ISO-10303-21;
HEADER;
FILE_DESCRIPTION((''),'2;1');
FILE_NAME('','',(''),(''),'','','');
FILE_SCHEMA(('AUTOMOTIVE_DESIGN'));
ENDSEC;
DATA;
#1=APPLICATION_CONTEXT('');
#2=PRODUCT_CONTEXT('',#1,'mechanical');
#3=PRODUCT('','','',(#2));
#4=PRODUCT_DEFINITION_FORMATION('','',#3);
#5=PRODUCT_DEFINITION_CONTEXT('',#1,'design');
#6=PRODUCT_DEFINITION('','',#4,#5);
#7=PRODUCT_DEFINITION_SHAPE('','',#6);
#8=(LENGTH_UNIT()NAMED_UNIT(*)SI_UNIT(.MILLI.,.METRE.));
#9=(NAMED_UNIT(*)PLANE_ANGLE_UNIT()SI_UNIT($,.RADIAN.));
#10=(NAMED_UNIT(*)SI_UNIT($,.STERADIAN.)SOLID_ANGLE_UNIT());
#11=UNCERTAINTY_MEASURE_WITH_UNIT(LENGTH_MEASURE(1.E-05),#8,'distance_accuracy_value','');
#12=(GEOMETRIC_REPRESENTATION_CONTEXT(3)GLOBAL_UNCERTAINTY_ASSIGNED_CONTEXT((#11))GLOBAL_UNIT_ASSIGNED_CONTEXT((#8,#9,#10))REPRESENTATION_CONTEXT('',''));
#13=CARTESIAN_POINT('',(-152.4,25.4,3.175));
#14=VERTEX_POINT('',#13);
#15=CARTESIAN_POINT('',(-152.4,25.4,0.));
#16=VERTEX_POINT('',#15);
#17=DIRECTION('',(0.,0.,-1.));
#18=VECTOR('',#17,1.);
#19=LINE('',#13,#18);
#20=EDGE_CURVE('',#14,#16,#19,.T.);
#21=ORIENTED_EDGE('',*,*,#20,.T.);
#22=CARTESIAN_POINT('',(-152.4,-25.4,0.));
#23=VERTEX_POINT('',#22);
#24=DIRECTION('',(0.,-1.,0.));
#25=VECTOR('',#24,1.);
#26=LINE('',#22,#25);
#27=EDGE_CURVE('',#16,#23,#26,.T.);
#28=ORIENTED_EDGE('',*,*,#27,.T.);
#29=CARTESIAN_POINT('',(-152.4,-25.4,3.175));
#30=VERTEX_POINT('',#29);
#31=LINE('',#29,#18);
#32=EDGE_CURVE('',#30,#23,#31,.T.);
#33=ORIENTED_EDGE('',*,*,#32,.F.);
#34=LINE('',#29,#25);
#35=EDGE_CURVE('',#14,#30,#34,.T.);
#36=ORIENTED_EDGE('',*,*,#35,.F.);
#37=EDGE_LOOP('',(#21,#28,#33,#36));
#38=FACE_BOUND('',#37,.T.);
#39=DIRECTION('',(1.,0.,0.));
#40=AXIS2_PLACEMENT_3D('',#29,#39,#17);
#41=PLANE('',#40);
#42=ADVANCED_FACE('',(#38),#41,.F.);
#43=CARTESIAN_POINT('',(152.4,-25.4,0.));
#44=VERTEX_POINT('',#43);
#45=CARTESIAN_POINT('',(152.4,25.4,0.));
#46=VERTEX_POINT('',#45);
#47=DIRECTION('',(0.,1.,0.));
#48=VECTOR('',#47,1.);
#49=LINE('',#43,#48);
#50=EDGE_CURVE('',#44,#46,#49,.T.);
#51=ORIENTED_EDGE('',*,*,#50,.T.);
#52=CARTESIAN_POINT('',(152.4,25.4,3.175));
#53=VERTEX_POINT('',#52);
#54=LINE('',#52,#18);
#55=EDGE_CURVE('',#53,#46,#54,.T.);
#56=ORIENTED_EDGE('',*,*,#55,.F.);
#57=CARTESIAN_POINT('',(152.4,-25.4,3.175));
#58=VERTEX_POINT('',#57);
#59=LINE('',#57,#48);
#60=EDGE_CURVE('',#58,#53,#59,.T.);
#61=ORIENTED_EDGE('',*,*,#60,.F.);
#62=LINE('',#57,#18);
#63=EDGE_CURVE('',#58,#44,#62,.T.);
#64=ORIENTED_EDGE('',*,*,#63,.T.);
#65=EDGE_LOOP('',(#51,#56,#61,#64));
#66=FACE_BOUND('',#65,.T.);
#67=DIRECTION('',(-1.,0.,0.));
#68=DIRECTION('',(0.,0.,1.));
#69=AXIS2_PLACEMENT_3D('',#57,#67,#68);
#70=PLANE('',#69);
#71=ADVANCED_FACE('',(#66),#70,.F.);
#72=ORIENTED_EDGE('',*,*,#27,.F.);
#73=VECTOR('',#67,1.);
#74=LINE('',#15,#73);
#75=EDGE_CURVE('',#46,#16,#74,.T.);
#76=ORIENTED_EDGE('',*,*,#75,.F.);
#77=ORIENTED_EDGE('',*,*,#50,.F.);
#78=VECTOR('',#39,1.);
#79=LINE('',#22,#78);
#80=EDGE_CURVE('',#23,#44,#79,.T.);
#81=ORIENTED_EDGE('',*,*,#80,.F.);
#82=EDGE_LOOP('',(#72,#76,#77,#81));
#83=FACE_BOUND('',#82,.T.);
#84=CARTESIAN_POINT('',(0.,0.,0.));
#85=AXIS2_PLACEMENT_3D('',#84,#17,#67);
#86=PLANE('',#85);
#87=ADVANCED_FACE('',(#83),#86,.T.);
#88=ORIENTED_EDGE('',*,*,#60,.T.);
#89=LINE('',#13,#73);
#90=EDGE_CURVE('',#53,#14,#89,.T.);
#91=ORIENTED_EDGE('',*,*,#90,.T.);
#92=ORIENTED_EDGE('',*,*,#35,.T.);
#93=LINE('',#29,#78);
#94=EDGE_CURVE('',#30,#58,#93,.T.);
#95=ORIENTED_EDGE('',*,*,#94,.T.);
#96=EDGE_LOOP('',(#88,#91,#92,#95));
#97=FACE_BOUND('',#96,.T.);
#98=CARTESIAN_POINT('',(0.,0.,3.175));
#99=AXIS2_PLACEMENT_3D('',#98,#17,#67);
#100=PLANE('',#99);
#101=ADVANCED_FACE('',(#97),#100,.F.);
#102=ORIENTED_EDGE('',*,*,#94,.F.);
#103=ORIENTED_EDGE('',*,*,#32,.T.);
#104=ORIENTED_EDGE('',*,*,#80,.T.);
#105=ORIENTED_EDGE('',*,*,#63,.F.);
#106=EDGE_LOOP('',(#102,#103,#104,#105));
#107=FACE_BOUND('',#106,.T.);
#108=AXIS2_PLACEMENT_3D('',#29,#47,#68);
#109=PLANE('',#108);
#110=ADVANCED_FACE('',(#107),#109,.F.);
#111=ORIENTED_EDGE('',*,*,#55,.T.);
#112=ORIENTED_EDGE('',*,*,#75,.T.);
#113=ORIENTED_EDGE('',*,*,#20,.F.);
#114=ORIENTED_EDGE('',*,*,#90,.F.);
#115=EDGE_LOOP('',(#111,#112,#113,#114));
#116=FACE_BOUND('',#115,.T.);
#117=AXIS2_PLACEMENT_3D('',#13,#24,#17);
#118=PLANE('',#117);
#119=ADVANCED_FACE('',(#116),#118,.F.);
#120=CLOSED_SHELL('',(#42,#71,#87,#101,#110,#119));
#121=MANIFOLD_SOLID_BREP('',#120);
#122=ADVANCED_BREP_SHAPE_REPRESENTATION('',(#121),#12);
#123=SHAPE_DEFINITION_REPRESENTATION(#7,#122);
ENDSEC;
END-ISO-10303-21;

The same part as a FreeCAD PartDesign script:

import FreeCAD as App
import Part
import Sketcher

V = App.Vector
Q = App.Units.Quantity


def add_polygon(sketch, points):
    """Adds a closed chain of lines whose ends are joined by coincident constraints."""
    first, n = sketch.GeometryCount, len(points)
    for a, b in zip(points, points[1:] + points[:1]):
        sketch.addGeometry(Part.LineSegment(App.Vector(*a, 0), App.Vector(*b, 0)), False)
    for i in range(n):
        sketch.addConstraint(Sketcher.Constraint("Coincident", first + i, 2, first + (i + 1) % n, 1))

doc = App.newDocument("Part")
params = doc.addObject("Spreadsheet::Sheet", "Params")
for row, (alias, value) in enumerate([
    ("sketch1_width", "12 in"),
    ("sketch1_height", "2 in"),
    ("pad1_length", "0.125 in"),
], start=1):
    params.set(f"A{row}", alias)
    params.set(f"B{row}", "=" + value)
    params.setAlias(f"B{row}", alias)

body = doc.addObject("PartDesign::Body", "Body")

# Sketch on XY plane
sketch1 = doc.addObject("Sketcher::SketchObject", "Sketch")
body.addObject(sketch1)
sketch1.AttachmentSupport = (doc.XY_Plane, [""])
sketch1.MapMode = "FlatFace"
add_polygon(sketch1, [(-152, 25), (-152, -25), (152, -25), (152, 25)])  # lines 0-3
sketch1.addConstraint([
    Sketcher.Constraint("Vertical", 0),
    Sketcher.Constraint("Horizontal", 1),
    Sketcher.Constraint("Vertical", 2),
    Sketcher.Constraint("Horizontal", 3),
    Sketcher.Constraint("Symmetric", 0, 2, 2, 2, -1, 1),
    Sketcher.Constraint("DistanceX", 1, 1, 1, 2, Q("12 in")),
    Sketcher.Constraint("DistanceY", 0, 2, 0, 1, Q("2 in")),
])
sketch1.setExpression("Constraints[9]", "Params.sketch1_width")
sketch1.setExpression("Constraints[10]", "Params.sketch1_height")
pad1 = doc.addObject("PartDesign::Pad", "Pad")
body.addObject(pad1)
pad1.Profile = sketch1
pad1.setExpression("Length", "Params.pad1_length")

doc.recompute()
